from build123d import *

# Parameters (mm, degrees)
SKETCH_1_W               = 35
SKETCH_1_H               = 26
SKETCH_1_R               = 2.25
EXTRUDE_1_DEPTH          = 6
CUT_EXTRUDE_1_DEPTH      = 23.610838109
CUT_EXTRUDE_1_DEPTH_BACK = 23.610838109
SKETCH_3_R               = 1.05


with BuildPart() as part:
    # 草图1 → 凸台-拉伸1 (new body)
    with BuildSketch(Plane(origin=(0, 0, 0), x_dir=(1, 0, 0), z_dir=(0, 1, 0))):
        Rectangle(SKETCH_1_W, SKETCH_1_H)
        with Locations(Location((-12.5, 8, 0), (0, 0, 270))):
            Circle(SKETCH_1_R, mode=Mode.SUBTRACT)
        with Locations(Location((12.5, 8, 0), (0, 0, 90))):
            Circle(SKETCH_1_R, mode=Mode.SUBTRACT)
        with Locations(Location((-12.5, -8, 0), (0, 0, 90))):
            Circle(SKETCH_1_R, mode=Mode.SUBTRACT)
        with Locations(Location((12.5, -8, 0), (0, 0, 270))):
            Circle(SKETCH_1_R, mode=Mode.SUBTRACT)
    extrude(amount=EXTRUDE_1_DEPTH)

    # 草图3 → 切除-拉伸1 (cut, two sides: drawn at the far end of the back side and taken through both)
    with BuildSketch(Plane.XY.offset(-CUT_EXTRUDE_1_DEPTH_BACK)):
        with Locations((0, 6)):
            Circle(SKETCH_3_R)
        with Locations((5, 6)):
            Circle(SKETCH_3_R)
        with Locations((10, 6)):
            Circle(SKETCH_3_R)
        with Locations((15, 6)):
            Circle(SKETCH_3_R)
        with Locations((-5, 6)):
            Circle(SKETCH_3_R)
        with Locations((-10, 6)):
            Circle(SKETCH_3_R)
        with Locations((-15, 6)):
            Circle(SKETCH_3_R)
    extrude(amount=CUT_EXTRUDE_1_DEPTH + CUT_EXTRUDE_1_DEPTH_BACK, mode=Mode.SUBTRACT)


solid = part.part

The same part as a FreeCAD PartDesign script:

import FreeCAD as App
import Part
import Sketcher
from FreeCAD import Vector
Q = App.Units.Quantity


def add_polygon(sketch, points):
    """Adds a closed chain of lines whose ends are joined by coincident constraints."""
    first, n = sketch.GeometryCount, len(points)
    for a, b in zip(points, points[1:] + points[:1]):
        sketch.addGeometry(Part.LineSegment(App.Vector(*a, 0), App.Vector(*b, 0)), False)
    for i in range(n):
        sketch.addConstraint(Sketcher.Constraint("Coincident", first + i, 2, first + (i + 1) % n, 1))

doc = App.newDocument("Part")
body = doc.addObject("PartDesign::Body", "Body")

sketch1 = body.newObject("Sketcher::SketchObject", "Sketch")
sketch1.AttachmentSupport = (doc.getObject("XZ_Plane"), [""])
sketch1.MapMode = "FlatFace"
add_polygon(sketch1, [(-17.5, -13), (-17.5, 13), (17.5, 13), (17.5, -13)])
sketch1.addGeometry(Part.Circle(Vector(-12.5, 8, 0), Vector(0, 0, 1), 2.2), False)
sketch1.addGeometry(Part.Circle(Vector(12.5, 8, 0), Vector(0, 0, 1), 2.2), False)
sketch1.addGeometry(Part.Circle(Vector(-12.5, -8, 0), Vector(0, 0, 1), 2.2), False)
sketch1.addGeometry(Part.Circle(Vector(12.5, -8, 0), Vector(0, 0, 1), 2.2), False)
sketch1.addConstraint([
    Sketcher.Constraint("Vertical", 0),
    Sketcher.Constraint("Horizontal", 1),
    Sketcher.Constraint("Vertical", 2),
    Sketcher.Constraint("Horizontal", 3),
    Sketcher.Constraint("Equal", 4, 5),
    Sketcher.Constraint("Equal", 5, 6),
    Sketcher.Constraint("Equal", 6, 7),
    Sketcher.Constraint("Symmetric", 5, 3, 6, 3, -1, 1),
    Sketcher.Constraint("Symmetric", 4, 3, 7, 3, -1, 1),
    Sketcher.Constraint("Symmetric", 0, 2, 2, 2, -1, 1),
    Sketcher.Constraint("Symmetric", 4, 3, 5, 3, -2),
    Sketcher.Constraint("Diameter", 4, Q("4.5 mm")),
    Sketcher.Constraint("DistanceX", 1, 1, 1, 2, Q("35 mm")),
    Sketcher.Constraint("DistanceY", 0, 1, 0, 2, Q("26 mm")),
    Sketcher.Constraint("DistanceY", -1, 1, 4, 3, Q("8 mm")),
    Sketcher.Constraint("DistanceX", 4, 3, 5, 3, Q("25 mm")),
])
pad1 = body.newObject("PartDesign::Pad", "Pad")
pad1.Profile = sketch1
pad1.Length = 6
pad1.Reversed = True

sketch2 = body.newObject("Sketcher::SketchObject", "Sketch001")
sketch2.AttachmentSupport = (doc.getObject("XY_Plane"), [""])
sketch2.MapMode = "FlatFace"
sketch2.addGeometry([
    Part.Circle(Vector(0, 6, 0), Vector(0, 0, 1), 1.1),
    Part.Circle(Vector(5, 6, 0), Vector(0, 0, 1), 1.1),
    Part.Circle(Vector(10, 6, 0), Vector(0, 0, 1), 1.1),
    Part.Circle(Vector(15, 6, 0), Vector(0, 0, 1), 1.1),
    Part.Circle(Vector(-5, 6, 0), Vector(0, 0, 1), 1.1),
    Part.Circle(Vector(-10, 6, 0), Vector(0, 0, 1), 1.1),
    Part.Circle(Vector(-15, 6, 0), Vector(0, 0, 1), 1.1),
], False)
sketch2.addConstraint([
    Sketcher.Constraint("Equal", 0, 1),
    Sketcher.Constraint("Equal", 1, 2),
    Sketcher.Constraint("Equal", 2, 3),
    Sketcher.Constraint("Equal", 3, 4),
    Sketcher.Constraint("Equal", 4, 5),
    Sketcher.Constraint("Equal", 5, 6),
    Sketcher.Constraint("Symmetric", 1, 3, 4, 3, -2),
    Sketcher.Constraint("Symmetric", 2, 3, 5, 3, -2),
    Sketcher.Constraint("Symmetric", 3, 3, 6, 3, -2),
    Sketcher.Constraint("PointOnObject", 0, 3, -2),
    Sketcher.Constraint("Horizontal", 0, 3, 1, 3),
    Sketcher.Constraint("Horizontal", 1, 3, 2, 3),
    Sketcher.Constraint("Horizontal", 2, 3, 3, 3),
    Sketcher.Constraint("Diameter", 0, Q("2.1 mm")),
    Sketcher.Constraint("DistanceY", -1, 1, 0, 3, Q("6 mm")),
    Sketcher.Constraint("DistanceX", -1, 1, 1, 3, Q("5 mm")),
    Sketcher.Constraint("DistanceX", -1, 1, 2, 3, Q("10 mm")),
    Sketcher.Constraint("DistanceX", -1, 1, 3, 3, Q("15 mm")),
])
pocket1 = body.newObject("PartDesign::Pocket", "Pocket")
pocket1.Profile = sketch2
pocket1.Type = "ThroughAll"
pocket1.Midplane = True

doc.recompute()
